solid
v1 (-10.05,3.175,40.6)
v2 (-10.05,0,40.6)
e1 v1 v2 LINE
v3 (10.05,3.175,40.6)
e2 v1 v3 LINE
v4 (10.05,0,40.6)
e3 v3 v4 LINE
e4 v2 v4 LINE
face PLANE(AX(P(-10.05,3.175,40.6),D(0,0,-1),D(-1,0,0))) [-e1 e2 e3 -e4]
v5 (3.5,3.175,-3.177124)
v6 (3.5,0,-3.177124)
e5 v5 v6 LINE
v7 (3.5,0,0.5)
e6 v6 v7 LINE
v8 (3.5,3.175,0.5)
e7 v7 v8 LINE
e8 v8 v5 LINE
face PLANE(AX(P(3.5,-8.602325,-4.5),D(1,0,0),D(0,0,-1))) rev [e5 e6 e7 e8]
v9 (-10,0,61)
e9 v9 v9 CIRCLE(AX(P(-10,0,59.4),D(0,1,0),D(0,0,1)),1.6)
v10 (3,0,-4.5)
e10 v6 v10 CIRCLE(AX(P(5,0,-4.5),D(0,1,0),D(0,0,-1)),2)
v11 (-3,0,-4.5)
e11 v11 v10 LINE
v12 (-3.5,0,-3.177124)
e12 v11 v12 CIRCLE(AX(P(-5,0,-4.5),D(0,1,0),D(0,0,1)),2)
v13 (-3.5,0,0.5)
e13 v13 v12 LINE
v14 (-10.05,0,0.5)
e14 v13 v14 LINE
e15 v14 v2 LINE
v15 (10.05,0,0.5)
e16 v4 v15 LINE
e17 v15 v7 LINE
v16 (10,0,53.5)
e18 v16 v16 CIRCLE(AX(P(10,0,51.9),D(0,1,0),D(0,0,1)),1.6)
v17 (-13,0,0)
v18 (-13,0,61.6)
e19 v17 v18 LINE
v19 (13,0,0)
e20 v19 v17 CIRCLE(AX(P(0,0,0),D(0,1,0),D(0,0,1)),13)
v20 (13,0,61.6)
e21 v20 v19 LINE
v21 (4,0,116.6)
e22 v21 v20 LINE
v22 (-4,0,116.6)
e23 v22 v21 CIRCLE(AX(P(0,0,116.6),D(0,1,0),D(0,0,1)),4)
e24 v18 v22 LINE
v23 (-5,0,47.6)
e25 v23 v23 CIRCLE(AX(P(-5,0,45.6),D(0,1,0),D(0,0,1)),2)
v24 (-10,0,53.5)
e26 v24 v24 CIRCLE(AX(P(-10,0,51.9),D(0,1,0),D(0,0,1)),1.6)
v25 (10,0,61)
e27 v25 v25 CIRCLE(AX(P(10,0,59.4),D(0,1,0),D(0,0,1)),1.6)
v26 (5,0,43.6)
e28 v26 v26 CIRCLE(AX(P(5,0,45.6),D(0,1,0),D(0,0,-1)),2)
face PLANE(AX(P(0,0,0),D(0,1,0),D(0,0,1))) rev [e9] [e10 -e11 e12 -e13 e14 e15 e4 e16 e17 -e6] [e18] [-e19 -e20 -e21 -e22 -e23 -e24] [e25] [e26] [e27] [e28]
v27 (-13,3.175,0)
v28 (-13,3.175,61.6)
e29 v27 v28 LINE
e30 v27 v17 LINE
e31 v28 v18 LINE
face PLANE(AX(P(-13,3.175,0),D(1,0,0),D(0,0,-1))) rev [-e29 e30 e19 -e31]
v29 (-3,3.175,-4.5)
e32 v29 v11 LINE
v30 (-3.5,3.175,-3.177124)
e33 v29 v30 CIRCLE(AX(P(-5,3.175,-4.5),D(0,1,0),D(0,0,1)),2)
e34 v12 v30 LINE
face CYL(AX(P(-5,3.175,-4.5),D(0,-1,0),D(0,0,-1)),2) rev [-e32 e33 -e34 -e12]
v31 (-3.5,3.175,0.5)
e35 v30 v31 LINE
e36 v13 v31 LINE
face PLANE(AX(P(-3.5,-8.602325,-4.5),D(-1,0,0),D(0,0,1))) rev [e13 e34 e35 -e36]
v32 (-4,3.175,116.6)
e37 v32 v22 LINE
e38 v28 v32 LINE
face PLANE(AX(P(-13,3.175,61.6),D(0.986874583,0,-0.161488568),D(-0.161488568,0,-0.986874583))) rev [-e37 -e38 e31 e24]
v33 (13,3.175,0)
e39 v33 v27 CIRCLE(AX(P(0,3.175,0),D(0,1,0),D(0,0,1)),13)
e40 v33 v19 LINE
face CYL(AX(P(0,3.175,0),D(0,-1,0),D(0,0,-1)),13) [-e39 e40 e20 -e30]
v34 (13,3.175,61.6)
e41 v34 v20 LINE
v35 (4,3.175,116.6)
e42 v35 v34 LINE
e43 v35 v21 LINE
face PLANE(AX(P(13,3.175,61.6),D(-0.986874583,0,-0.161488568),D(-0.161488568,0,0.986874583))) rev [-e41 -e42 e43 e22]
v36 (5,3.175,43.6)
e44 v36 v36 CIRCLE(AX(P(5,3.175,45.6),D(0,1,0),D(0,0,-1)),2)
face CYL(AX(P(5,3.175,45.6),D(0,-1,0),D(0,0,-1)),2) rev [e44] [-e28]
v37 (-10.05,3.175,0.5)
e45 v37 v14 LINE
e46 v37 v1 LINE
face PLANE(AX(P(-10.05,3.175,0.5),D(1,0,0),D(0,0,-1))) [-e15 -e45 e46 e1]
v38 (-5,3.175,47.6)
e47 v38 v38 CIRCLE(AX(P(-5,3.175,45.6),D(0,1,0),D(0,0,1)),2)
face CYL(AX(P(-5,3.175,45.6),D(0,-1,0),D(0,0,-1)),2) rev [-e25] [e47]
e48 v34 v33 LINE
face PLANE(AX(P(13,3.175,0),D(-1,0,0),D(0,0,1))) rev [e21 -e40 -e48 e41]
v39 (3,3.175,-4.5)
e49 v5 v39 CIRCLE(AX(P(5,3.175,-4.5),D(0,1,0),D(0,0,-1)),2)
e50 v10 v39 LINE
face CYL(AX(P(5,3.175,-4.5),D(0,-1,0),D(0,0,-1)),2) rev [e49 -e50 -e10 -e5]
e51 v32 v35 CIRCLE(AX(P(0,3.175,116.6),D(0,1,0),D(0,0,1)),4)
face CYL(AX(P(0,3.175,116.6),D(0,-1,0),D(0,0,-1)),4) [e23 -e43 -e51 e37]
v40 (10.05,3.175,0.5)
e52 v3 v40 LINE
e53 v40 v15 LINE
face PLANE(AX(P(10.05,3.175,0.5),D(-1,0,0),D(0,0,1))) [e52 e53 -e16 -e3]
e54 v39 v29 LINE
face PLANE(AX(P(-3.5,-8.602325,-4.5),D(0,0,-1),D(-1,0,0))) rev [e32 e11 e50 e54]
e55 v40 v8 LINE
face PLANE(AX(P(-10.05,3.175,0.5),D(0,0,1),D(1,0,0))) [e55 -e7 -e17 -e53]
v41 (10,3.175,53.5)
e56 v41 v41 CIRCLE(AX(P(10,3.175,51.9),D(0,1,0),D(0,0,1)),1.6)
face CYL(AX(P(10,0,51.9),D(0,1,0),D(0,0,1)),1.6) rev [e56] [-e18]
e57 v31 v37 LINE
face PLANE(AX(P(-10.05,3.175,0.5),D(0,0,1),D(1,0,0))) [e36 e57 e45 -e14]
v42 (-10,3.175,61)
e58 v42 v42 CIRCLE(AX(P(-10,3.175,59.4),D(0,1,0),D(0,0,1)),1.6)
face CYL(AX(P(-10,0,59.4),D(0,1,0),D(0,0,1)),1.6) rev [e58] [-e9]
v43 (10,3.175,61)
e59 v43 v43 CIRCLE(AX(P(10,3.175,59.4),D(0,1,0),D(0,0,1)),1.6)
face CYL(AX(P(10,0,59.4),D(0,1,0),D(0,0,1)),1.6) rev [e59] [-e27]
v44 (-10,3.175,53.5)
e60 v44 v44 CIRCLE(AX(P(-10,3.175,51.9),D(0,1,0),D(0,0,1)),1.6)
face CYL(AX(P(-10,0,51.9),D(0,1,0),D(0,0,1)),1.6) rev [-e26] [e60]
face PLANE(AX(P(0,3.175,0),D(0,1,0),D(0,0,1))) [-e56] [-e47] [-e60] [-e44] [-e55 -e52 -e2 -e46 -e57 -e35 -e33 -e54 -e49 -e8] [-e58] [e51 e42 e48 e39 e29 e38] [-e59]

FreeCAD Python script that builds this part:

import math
import FreeCAD as App
import Part
import Sketcher

doc = App.newDocument("Part")
body = doc.addObject("PartDesign::Body", "Body")

sketch1 = body.newObject("Sketcher::SketchObject", "Sketch")
sketch1.AttachmentSupport = (doc.getObject("XZ_Plane"), [""])
sketch1.MapMode = "FlatFace"
sketch1.addGeometry([
    Part.LineSegment(App.Vector(-13, 0, 0), App.Vector(-13, 61.6, 0)),
    Part.LineSegment(App.Vector(-13, 61.6, 0), App.Vector(-4, 116.6, 0)),
    Part.ArcOfCircle(Part.Circle(App.Vector(0, 116.6, 0), App.Vector(0, 0, 1), 4), math.radians(0), math.radians(180)),
    Part.LineSegment(App.Vector(4, 116.6, 0), App.Vector(13, 61.6, 0)),
    Part.LineSegment(App.Vector(13, 61.6, 0), App.Vector(13, 0, 0)),
    Part.ArcOfCircle(Part.Circle(App.Vector(0, 0, 0), App.Vector(0, 0, 1), 13), math.radians(180), math.radians(360)),
    Part.Circle(App.Vector(-5, 45.6, 0), App.Vector(0, 0, 1), 2),
    Part.Circle(App.Vector(5, 45.6, 0), App.Vector(0, 0, 1), 2),
    Part.LineSegment(App.Vector(10.1, 40.6, 0), App.Vector(-10.1, 40.6, 0)),
    Part.LineSegment(App.Vector(-10.1, 40.6, 0), App.Vector(-10.1, 0.5, 0)),
    Part.LineSegment(App.Vector(-10.1, 0.5, 0), App.Vector(10.1, 0.5, 0)),
    Part.LineSegment(App.Vector(10.1, 0.5, 0), App.Vector(10.1, 40.6, 0)),
    Part.Circle(App.Vector(-5, -4.5, 0), App.Vector(0, 0, 1), 2),
    Part.Circle(App.Vector(5, -4.5, 0), App.Vector(0, 0, 1), 2),
], False)
sketch1.addConstraint([
    Sketcher.Constraint("Coincident", 0, 2, 1, 1),
    Sketcher.Constraint("Coincident", 1, 2, 2, 2),
    Sketcher.Constraint("Coincident", 2, 1, 3, 1),
    Sketcher.Constraint("Coincident", 3, 2, 4, 1),
    Sketcher.Constraint("Tangent", 4, 2, 5, 2),
    Sketcher.Constraint("Tangent", 5, 1, 0, 1),
    Sketcher.Constraint("Coincident", 8, 2, 9, 1),
    Sketcher.Constraint("Coincident", 9, 2, 10, 1),
    Sketcher.Constraint("Coincident", 10, 2, 11, 1),
    Sketcher.Constraint("Coincident", 11, 2, 8, 1),
    Sketcher.Constraint("Vertical", 0),
    Sketcher.Constraint("Vertical", 4),
    Sketcher.Constraint("Horizontal", 8),
    Sketcher.Constraint("Vertical", 9),
    Sketcher.Constraint("Horizontal", 10),
    Sketcher.Constraint("Vertical", 11),
    Sketcher.Constraint("Coincident", 5, 3, -1, 1),
    Sketcher.Constraint("Equal", 6, 7),
    Sketcher.Constraint("Equal", 7, 12),
    Sketcher.Constraint("Equal", 12, 13),
    Sketcher.Constraint("Symmetric", 6, 3, 7, 3, -2),
    Sketcher.Constraint("Symmetric", 12, 3, 13, 3, -2),
    Sketcher.Constraint("Symmetric", 1, 2, 2, 1, -2),
    Sketcher.Constraint("Horizontal", 2, 3, 1, 2),
    Sketcher.Constraint("Horizontal", 0, 2, 3, 2),
    Sketcher.Constraint("Vertical", 6, 3, 12, 3),
    Sketcher.Constraint("Diameter", 6, 4.0),
    Sketcher.Constraint("Radius", 2, 4.0),
    Sketcher.Constraint("Radius", 5, 13.0),
    Sketcher.Constraint("DistanceX", 8, 2, 8, 1, 20.1),
    Sketcher.Constraint("DistanceY", 0, 1, 0, 2, 61.6),
    Sketcher.Constraint("DistanceY", 9, 2, 9, 1, 40.1),
    Sketcher.Constraint("DistanceX", 6, 3, -1, 1, 5.0),
    Sketcher.Constraint("DistanceY", 6, 3, 2, 3, 71.0),
    Sketcher.Constraint("DistanceY", 6, 3, 0, 2, 16.0),
    Sketcher.Constraint("DistanceY", 8, 2, 6, 3, 5.0),
    Sketcher.Constraint("DistanceY", 12, 3, 9, 2, 5.0),
    Sketcher.Constraint("DistanceX", 8, 2, -1, 1, 10.05),
])
pad1 = body.newObject("PartDesign::Pad", "Pad")
pad1.Profile = sketch1
pad1.Length = 3.175
pad1.Reversed = True

sketch2 = body.newObject("Sketcher::SketchObject", "Sketch001")
sketch2.AttachmentSupport = (doc.getObject("XZ_Plane"), [""])
sketch2.MapMode = "FlatFace"
sketch2.AttachmentOffset = App.Placement(App.Vector(0, 0, -3.175), App.Rotation())
sketch2.addGeometry([
    Part.Circle(App.Vector(10, 59.4, 0), App.Vector(0, 0, 1), 1.6),
    Part.Circle(App.Vector(10, 51.9, 0), App.Vector(0, 0, 1), 1.6),
    Part.Circle(App.Vector(-10, 59.4, 0), App.Vector(0, 0, 1), 1.6),
    Part.Circle(App.Vector(-10, 51.9, 0), App.Vector(0, 0, 1), 1.6),
], False)
sketch2.addConstraint([
    Sketcher.Constraint("Equal", 0, 1),
    Sketcher.Constraint("Equal", 1, 2),
    Sketcher.Constraint("Equal", 2, 3),
    Sketcher.Constraint("Symmetric", 0, 3, 2, 3, -2),
    Sketcher.Constraint("Symmetric", 1, 3, 3, 3, -2),
    Sketcher.Constraint("Vertical", 0, 3, 1, 3),
    Sketcher.Constraint("Diameter", 0, 3.2),
    Sketcher.Constraint("DistanceX", -1, 1, 0, 3, 10.0),
    Sketcher.Constraint("DistanceY", -1, 1, 0, 3, 59.4),
    Sketcher.Constraint("DistanceY", -1, 1, 1, 3, 51.9),
])
pocket1 = body.newObject("PartDesign::Pocket", "Pocket")
pocket1.Profile = sketch2
pocket1.Type = "ThroughAll"
pocket1.Midplane = True

sketch3 = body.newObject("Sketcher::SketchObject", "Sketch002")
sketch3.AttachmentSupport = (doc.getObject("XZ_Plane"), [""])
sketch3.MapMode = "FlatFace"
sketch3.AttachmentOffset = App.Placement(App.Vector(0, 0, -3.175), App.Rotation())
sketch3.addGeometry([
    Part.LineSegment(App.Vector(-4, -4, 0), App.Vector(-4, 0, 0)),
    Part.LineSegment(App.Vector(-4, 0, 0), App.Vector(4, 0, 0)),
    Part.LineSegment(App.Vector(4, 0, 0), App.Vector(4, -4, 0)),
    Part.LineSegment(App.Vector(4, -4, 0), App.Vector(-4, -4, 0)),
], False)
sketch3.addConstraint([
    Sketcher.Constraint("Coincident", 0, 2, 1, 1),
    Sketcher.Constraint("Coincident", 1, 2, 2, 1),
    Sketcher.Constraint("Coincident", 2, 2, 3, 1),
    Sketcher.Constraint("Coincident", 3, 2, 0, 1),
    Sketcher.Constraint("Vertical", 0),
    Sketcher.Constraint("Horizontal", 1),
    Sketcher.Constraint("Vertical", 2),
    Sketcher.Constraint("Horizontal", 3),
    Sketcher.Constraint("DistanceX", 1, 1, 1, 2, 7.0),
    Sketcher.Constraint("DistanceY", 0, 1, 0, 2, 5.0),
    Sketcher.Constraint("DistanceX", 0, 2, -1, 1, 3.5),
    Sketcher.Constraint("DistanceY", -1, 1, 0, 2, 0.5),
])
pocket2 = body.newObject("PartDesign::Pocket", "Pocket001")
pocket2.Profile = sketch3
pocket2.Length = 3.175
pocket2.Reversed = True

doc.recompute()
